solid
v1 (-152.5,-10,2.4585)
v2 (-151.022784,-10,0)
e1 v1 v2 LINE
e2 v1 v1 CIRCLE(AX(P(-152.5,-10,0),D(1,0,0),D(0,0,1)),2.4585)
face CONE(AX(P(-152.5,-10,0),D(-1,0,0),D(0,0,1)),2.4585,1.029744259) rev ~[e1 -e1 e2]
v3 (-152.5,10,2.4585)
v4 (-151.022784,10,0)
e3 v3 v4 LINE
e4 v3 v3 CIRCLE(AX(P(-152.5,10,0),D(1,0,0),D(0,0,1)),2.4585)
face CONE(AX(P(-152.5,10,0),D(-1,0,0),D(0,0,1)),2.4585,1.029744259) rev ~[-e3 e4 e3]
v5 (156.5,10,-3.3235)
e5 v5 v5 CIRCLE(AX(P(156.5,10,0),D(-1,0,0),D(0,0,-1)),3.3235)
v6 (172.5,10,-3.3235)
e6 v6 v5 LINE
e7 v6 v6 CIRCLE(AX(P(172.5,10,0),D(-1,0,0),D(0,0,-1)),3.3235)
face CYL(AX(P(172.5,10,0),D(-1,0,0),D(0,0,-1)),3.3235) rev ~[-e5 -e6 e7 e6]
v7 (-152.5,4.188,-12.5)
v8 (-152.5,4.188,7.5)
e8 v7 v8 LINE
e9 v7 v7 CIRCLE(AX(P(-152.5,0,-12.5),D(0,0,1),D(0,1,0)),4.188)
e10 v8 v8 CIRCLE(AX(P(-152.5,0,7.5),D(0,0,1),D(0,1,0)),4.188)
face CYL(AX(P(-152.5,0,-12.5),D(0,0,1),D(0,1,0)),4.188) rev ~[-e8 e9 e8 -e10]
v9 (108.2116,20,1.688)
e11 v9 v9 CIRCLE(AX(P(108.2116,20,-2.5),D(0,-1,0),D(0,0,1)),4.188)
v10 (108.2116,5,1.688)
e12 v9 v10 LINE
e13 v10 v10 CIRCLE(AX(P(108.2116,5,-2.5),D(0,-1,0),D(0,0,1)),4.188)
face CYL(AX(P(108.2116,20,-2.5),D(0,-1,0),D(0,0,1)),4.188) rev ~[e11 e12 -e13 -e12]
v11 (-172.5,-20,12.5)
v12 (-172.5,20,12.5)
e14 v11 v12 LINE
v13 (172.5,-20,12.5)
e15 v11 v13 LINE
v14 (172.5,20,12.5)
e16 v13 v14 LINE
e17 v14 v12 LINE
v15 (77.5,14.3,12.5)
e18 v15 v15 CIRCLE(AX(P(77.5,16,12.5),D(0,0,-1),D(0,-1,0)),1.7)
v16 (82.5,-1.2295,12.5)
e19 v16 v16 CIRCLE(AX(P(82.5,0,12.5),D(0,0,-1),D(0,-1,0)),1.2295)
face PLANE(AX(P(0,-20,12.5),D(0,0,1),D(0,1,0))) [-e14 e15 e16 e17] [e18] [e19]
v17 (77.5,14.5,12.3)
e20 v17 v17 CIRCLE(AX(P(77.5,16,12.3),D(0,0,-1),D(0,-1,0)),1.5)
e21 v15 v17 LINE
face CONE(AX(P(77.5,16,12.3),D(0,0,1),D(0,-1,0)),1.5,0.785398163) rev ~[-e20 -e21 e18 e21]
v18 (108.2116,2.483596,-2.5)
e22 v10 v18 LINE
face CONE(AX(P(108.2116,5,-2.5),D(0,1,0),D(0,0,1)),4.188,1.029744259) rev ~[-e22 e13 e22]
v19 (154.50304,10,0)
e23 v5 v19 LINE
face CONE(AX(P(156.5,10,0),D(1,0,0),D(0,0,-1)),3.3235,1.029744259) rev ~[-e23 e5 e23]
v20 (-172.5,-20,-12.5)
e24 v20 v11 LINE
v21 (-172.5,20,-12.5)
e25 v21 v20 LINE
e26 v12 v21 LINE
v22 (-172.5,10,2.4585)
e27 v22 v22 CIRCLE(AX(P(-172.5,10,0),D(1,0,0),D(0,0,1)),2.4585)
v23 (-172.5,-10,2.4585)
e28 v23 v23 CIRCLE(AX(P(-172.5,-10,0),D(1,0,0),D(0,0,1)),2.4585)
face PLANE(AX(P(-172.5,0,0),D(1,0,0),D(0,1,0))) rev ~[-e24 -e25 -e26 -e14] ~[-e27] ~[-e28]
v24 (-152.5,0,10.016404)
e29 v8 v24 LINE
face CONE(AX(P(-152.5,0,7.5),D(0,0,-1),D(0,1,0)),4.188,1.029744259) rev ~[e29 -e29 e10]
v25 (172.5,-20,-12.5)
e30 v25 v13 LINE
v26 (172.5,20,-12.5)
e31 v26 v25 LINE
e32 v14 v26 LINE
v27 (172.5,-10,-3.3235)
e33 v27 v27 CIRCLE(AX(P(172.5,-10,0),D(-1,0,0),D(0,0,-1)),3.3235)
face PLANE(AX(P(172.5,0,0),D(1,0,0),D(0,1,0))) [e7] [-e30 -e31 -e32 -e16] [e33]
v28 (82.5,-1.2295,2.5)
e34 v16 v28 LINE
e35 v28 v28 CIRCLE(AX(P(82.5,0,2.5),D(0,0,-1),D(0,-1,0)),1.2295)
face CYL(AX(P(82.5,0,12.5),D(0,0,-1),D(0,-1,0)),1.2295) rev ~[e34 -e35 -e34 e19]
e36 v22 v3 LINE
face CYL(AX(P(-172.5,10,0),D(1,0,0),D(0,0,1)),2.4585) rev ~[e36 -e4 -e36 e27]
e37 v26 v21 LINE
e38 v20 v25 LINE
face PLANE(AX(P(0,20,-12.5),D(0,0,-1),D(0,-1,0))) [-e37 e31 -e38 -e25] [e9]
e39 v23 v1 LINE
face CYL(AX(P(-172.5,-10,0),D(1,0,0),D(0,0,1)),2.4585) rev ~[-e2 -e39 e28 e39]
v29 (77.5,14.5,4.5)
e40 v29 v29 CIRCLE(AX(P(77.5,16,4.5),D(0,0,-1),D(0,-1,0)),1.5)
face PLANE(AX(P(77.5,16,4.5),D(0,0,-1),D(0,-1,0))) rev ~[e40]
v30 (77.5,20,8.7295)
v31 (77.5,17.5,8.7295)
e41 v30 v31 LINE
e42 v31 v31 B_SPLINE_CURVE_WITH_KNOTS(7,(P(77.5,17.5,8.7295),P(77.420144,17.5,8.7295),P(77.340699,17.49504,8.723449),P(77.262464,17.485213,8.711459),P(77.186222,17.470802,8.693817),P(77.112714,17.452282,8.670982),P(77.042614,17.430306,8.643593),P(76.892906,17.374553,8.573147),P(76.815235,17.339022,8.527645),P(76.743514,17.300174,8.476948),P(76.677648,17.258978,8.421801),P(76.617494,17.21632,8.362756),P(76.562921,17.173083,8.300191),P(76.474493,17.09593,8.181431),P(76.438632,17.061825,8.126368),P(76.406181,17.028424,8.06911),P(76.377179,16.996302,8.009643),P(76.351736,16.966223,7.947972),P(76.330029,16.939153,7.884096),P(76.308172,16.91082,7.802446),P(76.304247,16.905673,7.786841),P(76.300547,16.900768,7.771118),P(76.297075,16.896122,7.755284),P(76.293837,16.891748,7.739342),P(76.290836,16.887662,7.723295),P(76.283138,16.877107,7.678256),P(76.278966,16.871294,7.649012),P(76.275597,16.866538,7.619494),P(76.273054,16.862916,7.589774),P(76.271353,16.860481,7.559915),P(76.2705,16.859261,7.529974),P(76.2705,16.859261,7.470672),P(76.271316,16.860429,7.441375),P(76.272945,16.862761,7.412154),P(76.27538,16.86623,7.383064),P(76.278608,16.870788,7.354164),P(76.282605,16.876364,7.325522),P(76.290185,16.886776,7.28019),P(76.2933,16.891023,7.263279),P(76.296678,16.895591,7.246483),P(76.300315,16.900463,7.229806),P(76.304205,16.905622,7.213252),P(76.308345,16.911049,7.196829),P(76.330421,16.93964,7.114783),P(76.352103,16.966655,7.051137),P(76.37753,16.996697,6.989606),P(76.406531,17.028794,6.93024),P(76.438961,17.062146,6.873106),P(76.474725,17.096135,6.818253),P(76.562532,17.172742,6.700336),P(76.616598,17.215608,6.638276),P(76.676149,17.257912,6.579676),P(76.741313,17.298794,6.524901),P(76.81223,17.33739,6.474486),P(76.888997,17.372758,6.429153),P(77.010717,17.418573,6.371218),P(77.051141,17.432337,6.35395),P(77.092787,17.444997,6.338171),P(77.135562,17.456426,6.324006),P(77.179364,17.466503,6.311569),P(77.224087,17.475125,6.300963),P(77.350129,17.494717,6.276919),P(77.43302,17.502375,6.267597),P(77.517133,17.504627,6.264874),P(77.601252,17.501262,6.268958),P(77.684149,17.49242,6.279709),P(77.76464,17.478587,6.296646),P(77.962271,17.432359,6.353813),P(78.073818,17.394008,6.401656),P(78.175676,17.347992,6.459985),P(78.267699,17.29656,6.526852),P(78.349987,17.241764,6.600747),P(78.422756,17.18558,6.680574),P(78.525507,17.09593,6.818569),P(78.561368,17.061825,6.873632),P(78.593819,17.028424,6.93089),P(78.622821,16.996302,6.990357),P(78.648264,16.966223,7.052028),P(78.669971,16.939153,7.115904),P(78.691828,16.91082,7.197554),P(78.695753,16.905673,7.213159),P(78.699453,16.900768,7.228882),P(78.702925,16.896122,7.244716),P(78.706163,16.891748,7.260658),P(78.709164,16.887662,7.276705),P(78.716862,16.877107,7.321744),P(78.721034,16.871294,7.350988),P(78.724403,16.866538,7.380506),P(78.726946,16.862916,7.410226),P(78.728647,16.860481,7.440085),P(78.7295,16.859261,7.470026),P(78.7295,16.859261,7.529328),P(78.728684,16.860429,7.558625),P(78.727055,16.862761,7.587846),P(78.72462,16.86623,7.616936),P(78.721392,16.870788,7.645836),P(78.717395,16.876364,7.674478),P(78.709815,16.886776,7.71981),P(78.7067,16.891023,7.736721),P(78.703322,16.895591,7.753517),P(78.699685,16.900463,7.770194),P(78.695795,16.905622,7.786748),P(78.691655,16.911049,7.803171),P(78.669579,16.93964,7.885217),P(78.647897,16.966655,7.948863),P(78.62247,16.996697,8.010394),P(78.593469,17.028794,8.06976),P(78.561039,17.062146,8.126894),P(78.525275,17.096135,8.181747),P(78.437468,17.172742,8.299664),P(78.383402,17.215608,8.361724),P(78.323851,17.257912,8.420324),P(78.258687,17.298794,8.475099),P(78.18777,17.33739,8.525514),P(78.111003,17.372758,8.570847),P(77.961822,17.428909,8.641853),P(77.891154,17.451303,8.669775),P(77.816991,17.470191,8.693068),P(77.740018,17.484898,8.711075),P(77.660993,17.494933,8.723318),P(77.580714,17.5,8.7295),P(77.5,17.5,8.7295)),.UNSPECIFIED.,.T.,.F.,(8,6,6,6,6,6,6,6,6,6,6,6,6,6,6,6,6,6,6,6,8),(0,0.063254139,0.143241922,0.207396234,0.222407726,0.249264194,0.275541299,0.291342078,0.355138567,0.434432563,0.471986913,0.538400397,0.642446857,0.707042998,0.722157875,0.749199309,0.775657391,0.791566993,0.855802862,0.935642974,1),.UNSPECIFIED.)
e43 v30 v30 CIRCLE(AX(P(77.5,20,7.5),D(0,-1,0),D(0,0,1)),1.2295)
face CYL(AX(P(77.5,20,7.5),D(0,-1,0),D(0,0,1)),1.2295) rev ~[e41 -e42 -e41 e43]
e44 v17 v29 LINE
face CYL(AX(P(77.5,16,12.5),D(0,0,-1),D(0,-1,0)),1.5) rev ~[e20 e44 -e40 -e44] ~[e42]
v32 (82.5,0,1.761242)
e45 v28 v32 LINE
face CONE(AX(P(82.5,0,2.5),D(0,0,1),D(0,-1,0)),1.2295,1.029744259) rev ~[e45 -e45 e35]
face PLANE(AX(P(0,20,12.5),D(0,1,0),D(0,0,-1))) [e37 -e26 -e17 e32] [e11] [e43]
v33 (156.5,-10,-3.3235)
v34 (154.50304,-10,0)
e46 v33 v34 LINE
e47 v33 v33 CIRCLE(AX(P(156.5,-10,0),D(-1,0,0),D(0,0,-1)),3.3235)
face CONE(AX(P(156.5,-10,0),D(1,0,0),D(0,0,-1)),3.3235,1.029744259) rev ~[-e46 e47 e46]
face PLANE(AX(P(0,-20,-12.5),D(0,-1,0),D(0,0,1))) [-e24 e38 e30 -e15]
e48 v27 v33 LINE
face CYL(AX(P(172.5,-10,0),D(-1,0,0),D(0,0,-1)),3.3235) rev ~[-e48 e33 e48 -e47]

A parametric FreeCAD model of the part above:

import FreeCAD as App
import Part
import Sketcher

V = App.Vector


def edges_at(feature, points):
    """Names of the edges that pass closest to the given points."""
    edges = feature.Shape.Edges
    near = lambda p: min(range(len(edges)), key=lambda i: edges[i].distToShape(Part.Vertex(*p))[0])
    return sorted({f"Edge{near(p) + 1}" for p in points})


def add_polygon(sketch, points):
    """Adds a closed chain of lines whose ends are joined by coincident constraints."""
    first, n = sketch.GeometryCount, len(points)
    for a, b in zip(points, points[1:] + points[:1]):
        sketch.addGeometry(Part.LineSegment(App.Vector(*a, 0), App.Vector(*b, 0)), False)
    for i in range(n):
        sketch.addConstraint(Sketcher.Constraint("Coincident", first + i, 2, first + (i + 1) % n, 1))

doc = App.newDocument("Part")
body = doc.addObject("PartDesign::Body", "Body")

# Sketch on YZ plane
sketch1 = body.newObject("Sketcher::SketchObject", "Sketch")
sketch1.AttachmentSupport = (doc.getObject("YZ_Plane"), [""])
sketch1.MapMode = "FlatFace"
add_polygon(sketch1, [(20, 12.5), (-20, 12.5), (-20, -12.5), (20, -12.5)])  # lines 0-3
sketch1.addConstraint([
    Sketcher.Constraint("Horizontal", 0),
    Sketcher.Constraint("Vertical", 1),
    Sketcher.Constraint("Horizontal", 2),
    Sketcher.Constraint("Vertical", 3),
    Sketcher.Constraint("Symmetric", 0, 2, 2, 2, -1, 1),
    Sketcher.Constraint("DistanceX", 0, 2, 0, 1, 40.0),
    Sketcher.Constraint("DistanceY", 1, 2, 1, 1, 25.0),
])
pad1 = body.newObject("PartDesign::Pad", "Pad")
pad1.Profile = sketch1
pad1.Length = 345
pad1.Midplane = True

# Sketch on YZ plane
sketch2 = body.newObject("Sketcher::SketchObject", "Sketch001")
sketch2.AttachmentSupport = (doc.getObject("YZ_Plane"), [""])
sketch2.MapMode = "FlatFace"
sketch2.AttachmentOffset = App.Placement(V(0, 0, -172.5), App.Rotation())
sketch2.addGeometry([
    Part.Circle(V(10, 0, 0), V(0, 0, 1), 2.4585),
    Part.Circle(V(-10, 0, 0), V(0, 0, 1), 2.4585),
], False)
sketch2.addConstraint([
    Sketcher.Constraint("Equal", 0, 1),
    Sketcher.Constraint("Symmetric", 0, 3, 1, 3, -1, 1),
    Sketcher.Constraint("PointOnObject", 0, 3, -1),
    Sketcher.Constraint("Diameter", 0, 4.917),
    Sketcher.Constraint("DistanceX", -1, 1, 0, 3, 10.0),
])
doc.recompute()
hole = body.newObject("PartDesign::Hole", "Hole")
hole.Profile = sketch2
hole.ThreadType = "None"
hole.Diameter = 4.917
hole.DepthType = "Dimension"
hole.Depth = 20
hole.DrillPoint = "Angled"
hole.DrillPointAngle = 118
hole.Reversed = True

# Sketch on XZ plane
sketch3 = body.newObject("Sketcher::SketchObject", "Sketch002")
sketch3.AttachmentSupport = (doc.getObject("XZ_Plane"), [""])
sketch3.MapMode = "FlatFace"
sketch3.AttachmentOffset = App.Placement(V(0, 0, -20), App.Rotation())
sketch3.addGeometry(Part.Circle(V(108.2116, -2.5, 0), V(0, 0, 1), 4.188), False)
sketch3.addConstraint([
    Sketcher.Constraint("Diameter", 0, 8.376),
    Sketcher.Constraint("DistanceY", 0, 3, -1, 1, 2.5),
    Sketcher.Constraint("DistanceX", -1, 1, 0, 3, 108.2116),
])
doc.recompute()
hole2 = body.newObject("PartDesign::Hole", "Hole001")
hole2.Profile = sketch3
hole2.ThreadType = "None"
hole2.Diameter = 8.376
hole2.DepthType = "Dimension"
hole2.Depth = 15
hole2.DrillPoint = "Angled"
hole2.DrillPointAngle = 118
hole2.Reversed = True

# Sketch on XY plane
sketch4 = body.newObject("Sketcher::SketchObject", "Sketch003")
sketch4.AttachmentSupport = (doc.getObject("XY_Plane"), [""])
sketch4.MapMode = "FlatFace"
sketch4.AttachmentOffset = App.Placement(V(0, 0, -12.5), App.Rotation())
sketch4.addGeometry(Part.Circle(V(-152.5, 0, 0), V(0, 0, 1), 4.188), False)
sketch4.addConstraint([
    Sketcher.Constraint("PointOnObject", 0, 3, -1),
    Sketcher.Constraint("Diameter", 0, 8.376),
    Sketcher.Constraint("DistanceX", 0, 3, -1, 1, 152.5),
])
doc.recompute()
hole3 = body.newObject("PartDesign::Hole", "Hole002")
hole3.Profile = sketch4
hole3.ThreadType = "None"
hole3.Diameter = 8.376
hole3.DepthType = "Dimension"
hole3.Depth = 20
hole3.DrillPoint = "Angled"
hole3.DrillPointAngle = 118
hole3.Reversed = True

# Sketch on YZ plane
sketch5 = body.newObject("Sketcher::SketchObject", "Sketch004")
sketch5.AttachmentSupport = (doc.getObject("YZ_Plane"), [""])
sketch5.MapMode = "FlatFace"
sketch5.AttachmentOffset = App.Placement(V(0, 0, 172.5), App.Rotation())
sketch5.addGeometry([
    Part.Circle(V(10, 0, 0), V(0, 0, 1), 3.3235),
    Part.Circle(V(-10, 0, 0), V(0, 0, 1), 3.3235),
], False)
sketch5.addConstraint([
    Sketcher.Constraint("Equal", 0, 1),
    Sketcher.Constraint("Symmetric", 0, 3, 1, 3, -1, 1),
    Sketcher.Constraint("PointOnObject", 0, 3, -1),
    Sketcher.Constraint("Diameter", 0, 6.647),
    Sketcher.Constraint("DistanceX", -1, 1, 0, 3, 10.0),
])
doc.recompute()
hole4 = body.newObject("PartDesign::Hole", "Hole003")
hole4.Profile = sketch5
hole4.ThreadType = "None"
hole4.Diameter = 6.647
hole4.DepthType = "Dimension"
hole4.Depth = 16
hole4.DrillPoint = "Angled"
hole4.DrillPointAngle = 118

# Sketch on XY plane
sketch6 = body.newObject("Sketcher::SketchObject", "Sketch005")
sketch6.AttachmentSupport = (doc.getObject("XY_Plane"), [""])
sketch6.MapMode = "FlatFace"
sketch6.AttachmentOffset = App.Placement(V(0, 0, 12.5), App.Rotation())
sketch6.addGeometry(Part.Circle(V(82.5, 0, 0), V(0, 0, 1), 1.2295), False)
sketch6.addConstraint([
    Sketcher.Constraint("PointOnObject", 0, 3, -1),
    Sketcher.Constraint("Diameter", 0, 2.459),
    Sketcher.Constraint("DistanceX", -1, 1, 0, 3, 82.5),
])
doc.recompute()
hole5 = body.newObject("PartDesign::Hole", "Hole004")
hole5.Profile = sketch6
hole5.ThreadType = "None"
hole5.Diameter = 2.459
hole5.DepthType = "Dimension"
hole5.Depth = 10
hole5.DrillPoint = "Angled"
hole5.DrillPointAngle = 118

# Sketch on XY plane
sketch7 = body.newObject("Sketcher::SketchObject", "Sketch006")
sketch7.AttachmentSupport = (doc.getObject("XY_Plane"), [""])
sketch7.MapMode = "FlatFace"
sketch7.AttachmentOffset = App.Placement(V(0, 0, 12.5), App.Rotation())
sketch7.addGeometry(Part.Circle(V(77.5, 16, 0), V(0, 0, 1), 1.5), False)
sketch7.addConstraint([
    Sketcher.Constraint("Diameter", 0, 3.0),
    Sketcher.Constraint("DistanceY", -1, 1, 0, 3, 16.0),
    Sketcher.Constraint("DistanceX", -1, 1, 0, 3, 77.5),
])
doc.recompute()
hole6 = body.newObject("PartDesign::Hole", "Hole005")
hole6.Profile = sketch7
hole6.ThreadType = "None"
hole6.Diameter = 3
hole6.DepthType = "Dimension"
hole6.Depth = 8
hole6.DrillPoint = "Flat"

# Sketch on XZ plane
sketch8 = body.newObject("Sketcher::SketchObject", "Sketch007")
sketch8.AttachmentSupport = (doc.getObject("XZ_Plane"), [""])
sketch8.MapMode = "FlatFace"
sketch8.AttachmentOffset = App.Placement(V(0, 0, -20), App.Rotation())
sketch8.addGeometry(Part.Circle(V(77.5, 7.5, 0), V(0, 0, 1), 1.2295), False)
sketch8.addConstraint([
    Sketcher.Constraint("Diameter", 0, 2.459),
    Sketcher.Constraint("DistanceX", -1, 1, 0, 3, 77.5),
    Sketcher.Constraint("DistanceY", -1, 1, 0, 3, 7.5),
])
doc.recompute()
hole7 = body.newObject("PartDesign::Hole", "Hole006")
hole7.Profile = sketch8
hole7.ThreadType = "None"
hole7.Diameter = 2.459
hole7.DepthType = "Dimension"
hole7.Depth = 4
hole7.DrillPoint = "Angled"
hole7.DrillPointAngle = 118
hole7.Reversed = True
doc.recompute()

chamfer = body.newObject("PartDesign::Chamfer", "Chamfer")
chamfer.Base = (hole7, edges_at(hole7, [(77.5, 17.5, 12.5)]))
chamfer.Size = 0.2

doc.recompute()
